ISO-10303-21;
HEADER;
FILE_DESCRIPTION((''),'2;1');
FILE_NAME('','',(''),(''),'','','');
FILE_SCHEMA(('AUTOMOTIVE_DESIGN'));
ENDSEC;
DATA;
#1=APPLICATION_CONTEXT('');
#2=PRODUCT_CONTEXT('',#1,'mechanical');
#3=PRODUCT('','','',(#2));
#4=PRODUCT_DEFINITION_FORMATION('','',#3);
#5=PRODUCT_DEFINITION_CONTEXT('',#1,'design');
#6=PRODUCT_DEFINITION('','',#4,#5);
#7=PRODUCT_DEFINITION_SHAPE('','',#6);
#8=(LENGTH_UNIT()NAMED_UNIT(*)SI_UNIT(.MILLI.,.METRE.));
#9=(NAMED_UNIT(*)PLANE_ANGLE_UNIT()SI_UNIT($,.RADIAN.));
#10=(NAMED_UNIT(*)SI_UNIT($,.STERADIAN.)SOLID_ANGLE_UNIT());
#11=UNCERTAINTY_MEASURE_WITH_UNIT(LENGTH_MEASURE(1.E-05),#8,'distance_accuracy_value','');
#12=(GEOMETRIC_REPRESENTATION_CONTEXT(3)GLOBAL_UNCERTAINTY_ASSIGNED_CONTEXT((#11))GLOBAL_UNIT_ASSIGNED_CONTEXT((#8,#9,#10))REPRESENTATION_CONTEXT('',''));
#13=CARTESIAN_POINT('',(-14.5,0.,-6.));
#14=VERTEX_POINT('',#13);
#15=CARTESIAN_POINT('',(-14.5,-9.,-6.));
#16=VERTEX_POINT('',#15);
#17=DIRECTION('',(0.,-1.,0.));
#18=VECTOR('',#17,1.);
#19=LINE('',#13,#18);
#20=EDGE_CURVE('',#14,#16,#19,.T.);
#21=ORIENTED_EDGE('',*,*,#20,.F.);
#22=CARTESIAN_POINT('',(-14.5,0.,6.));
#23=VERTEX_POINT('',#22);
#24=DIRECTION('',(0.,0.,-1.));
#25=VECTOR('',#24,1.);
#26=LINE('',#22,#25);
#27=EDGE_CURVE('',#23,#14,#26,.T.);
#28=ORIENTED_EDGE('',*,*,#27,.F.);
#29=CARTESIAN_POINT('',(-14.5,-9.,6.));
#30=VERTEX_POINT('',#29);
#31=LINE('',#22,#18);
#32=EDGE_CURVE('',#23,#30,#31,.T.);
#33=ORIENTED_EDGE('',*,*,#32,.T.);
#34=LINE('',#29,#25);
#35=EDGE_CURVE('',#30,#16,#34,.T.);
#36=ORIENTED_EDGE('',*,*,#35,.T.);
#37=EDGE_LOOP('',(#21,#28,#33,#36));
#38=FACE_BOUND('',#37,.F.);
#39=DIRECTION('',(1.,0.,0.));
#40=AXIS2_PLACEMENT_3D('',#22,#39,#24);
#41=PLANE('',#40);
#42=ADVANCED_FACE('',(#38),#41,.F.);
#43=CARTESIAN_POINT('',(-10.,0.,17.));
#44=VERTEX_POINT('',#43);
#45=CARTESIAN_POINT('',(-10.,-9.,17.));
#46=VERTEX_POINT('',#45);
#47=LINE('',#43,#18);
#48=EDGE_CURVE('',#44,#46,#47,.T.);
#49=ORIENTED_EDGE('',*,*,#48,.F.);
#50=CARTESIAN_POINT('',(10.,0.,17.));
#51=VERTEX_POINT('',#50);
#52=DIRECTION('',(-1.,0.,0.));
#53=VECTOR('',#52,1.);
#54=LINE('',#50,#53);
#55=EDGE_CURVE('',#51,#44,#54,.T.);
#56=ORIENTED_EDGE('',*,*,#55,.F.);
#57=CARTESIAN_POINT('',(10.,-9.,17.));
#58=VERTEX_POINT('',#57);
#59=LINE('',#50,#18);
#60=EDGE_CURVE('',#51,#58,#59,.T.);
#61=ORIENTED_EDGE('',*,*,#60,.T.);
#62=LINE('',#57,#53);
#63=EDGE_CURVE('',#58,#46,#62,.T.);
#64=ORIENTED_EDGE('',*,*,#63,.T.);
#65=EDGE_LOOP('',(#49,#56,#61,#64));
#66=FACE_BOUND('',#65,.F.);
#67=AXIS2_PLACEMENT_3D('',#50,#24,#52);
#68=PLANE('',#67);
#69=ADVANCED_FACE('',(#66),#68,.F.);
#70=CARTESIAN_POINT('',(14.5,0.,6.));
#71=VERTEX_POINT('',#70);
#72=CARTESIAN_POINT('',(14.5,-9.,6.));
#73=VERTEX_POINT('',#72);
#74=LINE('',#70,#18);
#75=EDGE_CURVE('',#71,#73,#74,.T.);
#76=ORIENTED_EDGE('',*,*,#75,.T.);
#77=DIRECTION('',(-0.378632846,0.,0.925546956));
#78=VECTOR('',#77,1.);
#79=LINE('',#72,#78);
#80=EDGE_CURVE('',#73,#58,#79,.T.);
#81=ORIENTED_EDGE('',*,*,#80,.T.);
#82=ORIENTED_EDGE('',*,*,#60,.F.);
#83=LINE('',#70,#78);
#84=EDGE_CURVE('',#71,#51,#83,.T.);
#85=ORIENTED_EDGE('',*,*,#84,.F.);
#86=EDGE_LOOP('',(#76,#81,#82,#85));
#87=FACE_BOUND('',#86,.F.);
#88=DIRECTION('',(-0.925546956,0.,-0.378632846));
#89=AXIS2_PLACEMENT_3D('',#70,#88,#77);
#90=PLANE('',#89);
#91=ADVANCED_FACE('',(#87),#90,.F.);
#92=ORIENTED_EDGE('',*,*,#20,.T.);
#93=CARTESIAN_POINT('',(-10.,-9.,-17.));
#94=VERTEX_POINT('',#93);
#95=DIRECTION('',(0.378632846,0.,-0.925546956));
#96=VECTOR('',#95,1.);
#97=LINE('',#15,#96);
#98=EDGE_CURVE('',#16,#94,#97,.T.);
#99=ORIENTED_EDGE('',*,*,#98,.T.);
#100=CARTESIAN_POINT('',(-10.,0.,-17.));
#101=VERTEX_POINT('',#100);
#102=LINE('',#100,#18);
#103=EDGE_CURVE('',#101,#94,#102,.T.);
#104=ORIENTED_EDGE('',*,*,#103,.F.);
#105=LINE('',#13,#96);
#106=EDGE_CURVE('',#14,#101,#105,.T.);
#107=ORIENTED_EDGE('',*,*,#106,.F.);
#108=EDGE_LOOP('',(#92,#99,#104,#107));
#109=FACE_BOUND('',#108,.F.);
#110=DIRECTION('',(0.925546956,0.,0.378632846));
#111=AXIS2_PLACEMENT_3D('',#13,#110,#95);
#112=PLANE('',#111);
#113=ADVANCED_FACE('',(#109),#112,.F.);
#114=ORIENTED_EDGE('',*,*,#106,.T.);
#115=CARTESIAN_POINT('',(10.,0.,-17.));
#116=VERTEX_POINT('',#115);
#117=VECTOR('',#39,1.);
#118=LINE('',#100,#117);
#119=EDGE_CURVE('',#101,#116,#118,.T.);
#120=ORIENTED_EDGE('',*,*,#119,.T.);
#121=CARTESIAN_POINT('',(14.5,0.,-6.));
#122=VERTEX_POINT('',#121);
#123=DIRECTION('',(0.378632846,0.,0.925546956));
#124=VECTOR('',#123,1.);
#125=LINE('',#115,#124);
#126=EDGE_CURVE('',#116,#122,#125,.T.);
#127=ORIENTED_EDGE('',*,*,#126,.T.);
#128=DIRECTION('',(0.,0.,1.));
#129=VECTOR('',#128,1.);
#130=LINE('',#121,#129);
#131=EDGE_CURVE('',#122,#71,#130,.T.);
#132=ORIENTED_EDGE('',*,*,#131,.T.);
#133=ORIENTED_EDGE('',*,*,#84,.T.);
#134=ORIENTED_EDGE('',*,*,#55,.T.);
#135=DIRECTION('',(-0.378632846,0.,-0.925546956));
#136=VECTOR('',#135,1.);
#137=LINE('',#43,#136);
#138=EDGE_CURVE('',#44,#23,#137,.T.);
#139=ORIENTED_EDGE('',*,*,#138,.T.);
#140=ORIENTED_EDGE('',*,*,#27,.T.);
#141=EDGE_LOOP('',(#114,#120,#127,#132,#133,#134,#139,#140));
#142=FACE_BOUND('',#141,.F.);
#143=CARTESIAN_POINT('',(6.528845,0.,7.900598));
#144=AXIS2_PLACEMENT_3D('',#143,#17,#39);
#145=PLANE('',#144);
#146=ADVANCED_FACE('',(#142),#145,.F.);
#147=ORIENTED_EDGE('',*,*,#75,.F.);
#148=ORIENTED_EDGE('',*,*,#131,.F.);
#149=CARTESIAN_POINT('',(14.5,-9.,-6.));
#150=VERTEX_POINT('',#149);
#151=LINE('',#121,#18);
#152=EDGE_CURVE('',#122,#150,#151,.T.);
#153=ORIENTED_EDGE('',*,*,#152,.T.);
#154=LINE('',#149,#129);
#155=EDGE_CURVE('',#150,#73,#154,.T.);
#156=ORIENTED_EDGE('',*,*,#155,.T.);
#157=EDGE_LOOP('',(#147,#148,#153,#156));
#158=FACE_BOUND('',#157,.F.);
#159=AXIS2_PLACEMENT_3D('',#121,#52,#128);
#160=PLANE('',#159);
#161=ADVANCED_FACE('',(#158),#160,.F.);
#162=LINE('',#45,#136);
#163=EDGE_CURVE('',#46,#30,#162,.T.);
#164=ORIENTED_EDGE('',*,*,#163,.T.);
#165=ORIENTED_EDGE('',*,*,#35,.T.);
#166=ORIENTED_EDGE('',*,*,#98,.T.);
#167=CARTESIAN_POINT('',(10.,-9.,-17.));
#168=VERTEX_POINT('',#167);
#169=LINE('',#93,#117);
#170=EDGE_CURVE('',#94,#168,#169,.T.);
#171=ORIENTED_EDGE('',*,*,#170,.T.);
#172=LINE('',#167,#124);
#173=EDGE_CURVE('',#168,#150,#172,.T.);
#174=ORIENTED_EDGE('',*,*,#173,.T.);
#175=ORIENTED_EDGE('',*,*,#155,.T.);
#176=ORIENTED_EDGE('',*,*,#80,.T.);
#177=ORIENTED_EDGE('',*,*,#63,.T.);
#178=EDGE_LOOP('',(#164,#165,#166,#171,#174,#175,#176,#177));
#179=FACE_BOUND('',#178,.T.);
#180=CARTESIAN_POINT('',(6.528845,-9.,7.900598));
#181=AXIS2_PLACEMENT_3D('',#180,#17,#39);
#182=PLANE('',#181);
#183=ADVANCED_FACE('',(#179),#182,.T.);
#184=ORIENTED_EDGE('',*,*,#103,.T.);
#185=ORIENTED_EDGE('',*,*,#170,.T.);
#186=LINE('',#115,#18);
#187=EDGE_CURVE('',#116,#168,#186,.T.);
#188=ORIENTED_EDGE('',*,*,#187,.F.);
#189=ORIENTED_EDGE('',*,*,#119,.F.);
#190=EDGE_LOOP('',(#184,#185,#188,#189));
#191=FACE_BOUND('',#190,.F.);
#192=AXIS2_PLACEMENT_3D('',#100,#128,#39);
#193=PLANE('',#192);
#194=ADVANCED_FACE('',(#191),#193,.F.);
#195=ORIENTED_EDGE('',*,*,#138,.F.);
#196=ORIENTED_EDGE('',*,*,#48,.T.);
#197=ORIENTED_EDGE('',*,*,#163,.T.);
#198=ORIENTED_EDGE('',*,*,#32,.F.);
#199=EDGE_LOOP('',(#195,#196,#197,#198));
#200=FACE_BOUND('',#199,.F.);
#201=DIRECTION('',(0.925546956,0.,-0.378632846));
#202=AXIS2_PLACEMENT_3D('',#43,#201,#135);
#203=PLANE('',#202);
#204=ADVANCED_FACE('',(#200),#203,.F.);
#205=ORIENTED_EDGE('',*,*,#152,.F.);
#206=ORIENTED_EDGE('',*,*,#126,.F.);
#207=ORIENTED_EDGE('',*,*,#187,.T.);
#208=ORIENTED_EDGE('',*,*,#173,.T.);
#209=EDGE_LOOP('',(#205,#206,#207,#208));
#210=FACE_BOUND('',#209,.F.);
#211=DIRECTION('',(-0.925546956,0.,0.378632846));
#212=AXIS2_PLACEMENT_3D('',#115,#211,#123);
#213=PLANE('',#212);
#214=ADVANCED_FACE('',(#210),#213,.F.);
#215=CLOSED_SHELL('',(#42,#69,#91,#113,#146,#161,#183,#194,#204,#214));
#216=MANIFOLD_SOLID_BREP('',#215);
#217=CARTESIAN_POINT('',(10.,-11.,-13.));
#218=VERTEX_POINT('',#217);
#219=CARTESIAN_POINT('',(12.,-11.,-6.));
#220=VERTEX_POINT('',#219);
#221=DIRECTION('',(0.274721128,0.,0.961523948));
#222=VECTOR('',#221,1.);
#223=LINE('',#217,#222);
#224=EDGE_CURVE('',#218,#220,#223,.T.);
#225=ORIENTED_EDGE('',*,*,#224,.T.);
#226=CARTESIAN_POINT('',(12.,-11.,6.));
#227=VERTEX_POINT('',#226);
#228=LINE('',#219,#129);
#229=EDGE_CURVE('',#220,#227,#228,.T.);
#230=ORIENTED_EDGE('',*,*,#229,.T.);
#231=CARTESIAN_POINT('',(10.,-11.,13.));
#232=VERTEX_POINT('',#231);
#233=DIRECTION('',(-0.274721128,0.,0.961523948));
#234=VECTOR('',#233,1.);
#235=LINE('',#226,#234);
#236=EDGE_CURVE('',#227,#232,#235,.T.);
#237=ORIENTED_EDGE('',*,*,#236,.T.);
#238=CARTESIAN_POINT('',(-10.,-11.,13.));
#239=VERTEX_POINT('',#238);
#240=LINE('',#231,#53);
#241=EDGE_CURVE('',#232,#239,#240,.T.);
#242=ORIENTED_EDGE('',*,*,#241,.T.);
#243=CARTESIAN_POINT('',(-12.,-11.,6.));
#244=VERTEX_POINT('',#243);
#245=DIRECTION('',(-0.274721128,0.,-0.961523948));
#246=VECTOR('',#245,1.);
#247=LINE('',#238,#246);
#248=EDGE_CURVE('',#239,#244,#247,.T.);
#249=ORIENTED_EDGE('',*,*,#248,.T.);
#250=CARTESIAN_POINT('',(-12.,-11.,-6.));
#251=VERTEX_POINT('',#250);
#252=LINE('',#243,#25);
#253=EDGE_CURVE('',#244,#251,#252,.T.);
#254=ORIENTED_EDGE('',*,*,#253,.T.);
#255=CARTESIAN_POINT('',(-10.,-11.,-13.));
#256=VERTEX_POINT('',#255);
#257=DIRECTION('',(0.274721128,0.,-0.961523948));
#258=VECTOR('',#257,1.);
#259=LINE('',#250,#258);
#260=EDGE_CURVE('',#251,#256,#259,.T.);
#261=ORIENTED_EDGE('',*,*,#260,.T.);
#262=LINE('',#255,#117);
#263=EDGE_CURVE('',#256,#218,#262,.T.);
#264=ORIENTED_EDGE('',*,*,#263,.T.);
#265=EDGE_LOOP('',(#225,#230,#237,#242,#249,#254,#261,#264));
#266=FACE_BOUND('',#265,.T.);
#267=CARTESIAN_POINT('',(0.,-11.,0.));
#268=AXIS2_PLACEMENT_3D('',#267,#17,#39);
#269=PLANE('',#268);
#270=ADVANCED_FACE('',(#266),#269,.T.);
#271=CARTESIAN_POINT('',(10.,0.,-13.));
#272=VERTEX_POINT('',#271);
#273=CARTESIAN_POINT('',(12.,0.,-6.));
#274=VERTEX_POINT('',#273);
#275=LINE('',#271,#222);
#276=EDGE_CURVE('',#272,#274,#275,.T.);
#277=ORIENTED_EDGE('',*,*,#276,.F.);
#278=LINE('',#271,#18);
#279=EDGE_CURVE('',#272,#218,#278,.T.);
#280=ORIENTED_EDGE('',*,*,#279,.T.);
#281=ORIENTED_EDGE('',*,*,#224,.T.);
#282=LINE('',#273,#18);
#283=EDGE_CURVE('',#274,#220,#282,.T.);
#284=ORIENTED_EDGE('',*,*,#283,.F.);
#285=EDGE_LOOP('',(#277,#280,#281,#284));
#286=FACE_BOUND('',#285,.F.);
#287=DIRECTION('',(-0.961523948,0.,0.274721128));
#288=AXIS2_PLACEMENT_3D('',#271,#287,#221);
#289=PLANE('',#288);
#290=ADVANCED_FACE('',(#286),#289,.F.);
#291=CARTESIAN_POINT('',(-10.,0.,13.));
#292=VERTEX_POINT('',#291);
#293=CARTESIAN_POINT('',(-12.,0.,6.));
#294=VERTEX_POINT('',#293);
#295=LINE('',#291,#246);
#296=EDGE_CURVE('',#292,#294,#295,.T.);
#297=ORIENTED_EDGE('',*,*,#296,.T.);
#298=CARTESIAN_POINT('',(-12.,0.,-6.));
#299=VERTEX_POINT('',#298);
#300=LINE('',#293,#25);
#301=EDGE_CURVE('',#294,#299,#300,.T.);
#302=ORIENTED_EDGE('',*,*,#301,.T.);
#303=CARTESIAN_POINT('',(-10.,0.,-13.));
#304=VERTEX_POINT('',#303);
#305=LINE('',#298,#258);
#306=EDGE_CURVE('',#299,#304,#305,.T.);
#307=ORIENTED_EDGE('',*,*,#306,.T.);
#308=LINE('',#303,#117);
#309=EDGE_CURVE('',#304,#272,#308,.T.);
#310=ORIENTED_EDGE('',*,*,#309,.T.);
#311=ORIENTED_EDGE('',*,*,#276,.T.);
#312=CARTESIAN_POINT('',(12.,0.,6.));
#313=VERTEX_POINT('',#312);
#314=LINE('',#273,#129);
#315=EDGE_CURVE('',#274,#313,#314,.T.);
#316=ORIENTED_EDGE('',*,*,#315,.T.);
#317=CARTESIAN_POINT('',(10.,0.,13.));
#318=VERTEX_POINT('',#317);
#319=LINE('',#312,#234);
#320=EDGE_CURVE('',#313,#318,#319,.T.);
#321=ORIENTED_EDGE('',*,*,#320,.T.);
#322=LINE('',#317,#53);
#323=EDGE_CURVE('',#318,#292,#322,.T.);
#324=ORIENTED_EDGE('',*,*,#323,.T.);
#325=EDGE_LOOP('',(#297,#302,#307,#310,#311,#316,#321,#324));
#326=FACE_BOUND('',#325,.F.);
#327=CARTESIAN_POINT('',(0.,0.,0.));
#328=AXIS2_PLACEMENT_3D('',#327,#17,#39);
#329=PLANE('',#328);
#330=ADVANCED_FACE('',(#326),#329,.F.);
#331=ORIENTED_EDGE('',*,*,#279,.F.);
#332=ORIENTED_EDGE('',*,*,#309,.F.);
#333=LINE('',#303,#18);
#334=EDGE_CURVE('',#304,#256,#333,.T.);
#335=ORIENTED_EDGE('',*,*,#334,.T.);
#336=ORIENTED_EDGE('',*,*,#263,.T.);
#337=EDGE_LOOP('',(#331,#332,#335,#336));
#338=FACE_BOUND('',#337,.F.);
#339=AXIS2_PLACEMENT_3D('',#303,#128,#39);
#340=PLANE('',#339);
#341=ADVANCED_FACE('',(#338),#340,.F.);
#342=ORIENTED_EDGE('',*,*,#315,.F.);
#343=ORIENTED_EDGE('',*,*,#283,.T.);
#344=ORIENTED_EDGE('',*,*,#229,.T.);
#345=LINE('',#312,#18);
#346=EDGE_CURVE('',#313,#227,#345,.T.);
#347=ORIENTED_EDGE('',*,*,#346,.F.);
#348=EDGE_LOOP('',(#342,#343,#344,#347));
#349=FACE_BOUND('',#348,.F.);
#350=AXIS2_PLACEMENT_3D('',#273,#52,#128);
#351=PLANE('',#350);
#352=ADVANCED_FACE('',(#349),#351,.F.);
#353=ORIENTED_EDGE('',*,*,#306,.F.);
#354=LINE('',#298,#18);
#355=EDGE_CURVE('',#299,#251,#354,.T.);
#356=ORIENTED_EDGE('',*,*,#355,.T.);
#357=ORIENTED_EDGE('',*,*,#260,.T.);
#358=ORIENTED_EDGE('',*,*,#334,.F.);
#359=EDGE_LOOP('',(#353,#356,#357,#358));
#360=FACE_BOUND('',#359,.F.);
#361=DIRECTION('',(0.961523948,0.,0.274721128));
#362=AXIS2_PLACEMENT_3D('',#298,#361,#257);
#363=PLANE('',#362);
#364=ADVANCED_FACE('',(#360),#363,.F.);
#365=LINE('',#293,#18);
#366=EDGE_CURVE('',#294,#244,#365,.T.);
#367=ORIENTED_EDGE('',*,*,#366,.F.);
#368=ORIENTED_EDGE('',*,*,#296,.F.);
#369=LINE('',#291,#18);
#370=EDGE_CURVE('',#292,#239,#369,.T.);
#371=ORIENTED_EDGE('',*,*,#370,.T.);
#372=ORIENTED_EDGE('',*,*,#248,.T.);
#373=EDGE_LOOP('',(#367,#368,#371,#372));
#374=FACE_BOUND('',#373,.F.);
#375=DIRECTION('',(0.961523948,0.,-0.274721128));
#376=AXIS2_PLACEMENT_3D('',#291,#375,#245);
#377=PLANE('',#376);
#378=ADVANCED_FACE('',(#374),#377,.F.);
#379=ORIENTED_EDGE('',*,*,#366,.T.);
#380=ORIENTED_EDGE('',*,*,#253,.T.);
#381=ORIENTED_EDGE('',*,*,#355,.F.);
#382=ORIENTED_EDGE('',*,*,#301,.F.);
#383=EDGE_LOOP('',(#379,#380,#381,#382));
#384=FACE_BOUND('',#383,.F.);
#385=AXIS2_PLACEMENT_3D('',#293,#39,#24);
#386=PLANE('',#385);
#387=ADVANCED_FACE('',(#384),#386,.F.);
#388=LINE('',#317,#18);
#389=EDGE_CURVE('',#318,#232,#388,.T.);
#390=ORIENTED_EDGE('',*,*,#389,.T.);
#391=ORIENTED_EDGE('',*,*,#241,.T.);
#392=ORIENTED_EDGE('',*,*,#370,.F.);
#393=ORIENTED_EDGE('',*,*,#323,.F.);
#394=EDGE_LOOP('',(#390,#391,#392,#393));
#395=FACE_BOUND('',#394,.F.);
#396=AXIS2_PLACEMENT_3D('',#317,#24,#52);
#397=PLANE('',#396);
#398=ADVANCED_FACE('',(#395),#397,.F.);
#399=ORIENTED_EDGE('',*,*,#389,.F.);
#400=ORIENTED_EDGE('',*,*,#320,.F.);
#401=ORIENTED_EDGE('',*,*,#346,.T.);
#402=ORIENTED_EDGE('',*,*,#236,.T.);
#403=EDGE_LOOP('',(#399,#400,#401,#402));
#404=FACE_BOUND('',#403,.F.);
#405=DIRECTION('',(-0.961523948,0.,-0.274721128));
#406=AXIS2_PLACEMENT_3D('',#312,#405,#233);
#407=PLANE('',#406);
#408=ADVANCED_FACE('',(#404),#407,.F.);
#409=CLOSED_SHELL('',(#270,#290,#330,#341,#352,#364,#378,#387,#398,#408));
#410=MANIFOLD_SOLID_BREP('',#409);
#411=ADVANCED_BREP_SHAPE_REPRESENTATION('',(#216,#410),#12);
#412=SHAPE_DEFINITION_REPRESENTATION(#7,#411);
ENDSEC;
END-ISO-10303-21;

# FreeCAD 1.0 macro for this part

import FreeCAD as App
import Part
import Sketcher
from FreeCAD import Vector
Q = App.Units.Quantity

doc = App.newDocument("Part")
body = doc.addObject("PartDesign::Body", "Body")

sketch1 = body.newObject("Sketcher::SketchObject", "Sketch")
sketch1.AttachmentSupport = (doc.getObject("XZ_Plane"), [""])
sketch1.MapMode = "FlatFace"
sketch1.addGeometry([
    Part.LineSegment(Vector(10, 17, 0), Vector(-10, 17, 0)),
    Part.LineSegment(Vector(-10, 17, 0), Vector(-14, 6, 0)),
    Part.LineSegment(Vector(-14, 6, 0), Vector(-14, -6, 0)),
    Part.LineSegment(Vector(-14, -6, 0), Vector(-10, -17, 0)),
    Part.LineSegment(Vector(-10, -17, 0), Vector(10, -17, 0)),
    Part.LineSegment(Vector(10, -17, 0), Vector(14, -6, 0)),
    Part.LineSegment(Vector(14, -6, 0), Vector(14, 6, 0)),
    Part.LineSegment(Vector(14, 6, 0), Vector(10, 17, 0)),
], False)
sketch1.addConstraint([
    Sketcher.Constraint("Coincident", 0, 2, 1, 1),
    Sketcher.Constraint("Coincident", 1, 2, 2, 1),
    Sketcher.Constraint("Coincident", 2, 2, 3, 1),
    Sketcher.Constraint("Coincident", 3, 2, 4, 1),
    Sketcher.Constraint("Coincident", 4, 2, 5, 1),
    Sketcher.Constraint("Coincident", 5, 2, 6, 1),
    Sketcher.Constraint("Coincident", 6, 2, 7, 1),
    Sketcher.Constraint("Coincident", 7, 2, 0, 1),
    Sketcher.Constraint("Horizontal", 0),
    Sketcher.Constraint("Vertical", 2),
    Sketcher.Constraint("Horizontal", 4),
    Sketcher.Constraint("Vertical", 6),
    Sketcher.Constraint("Symmetric", 0, 2, 4, 2, -1, 1),
    Sketcher.Constraint("Symmetric", 1, 2, 5, 2, -1, 1),
    Sketcher.Constraint("Parallel", 3, 7),
    Sketcher.Constraint("Horizontal", 2, 2, 5, 2),
    Sketcher.Constraint("Horizontal", 1, 2, 6, 2),
    Sketcher.Constraint("Vertical", 0, 2, 3, 2),
    Sketcher.Constraint("DistanceX", 0, 2, 0, 1, Q("20 mm")),
    Sketcher.Constraint("DistanceY", 2, 2, 2, 1, Q("12 mm")),
    Sketcher.Constraint("DistanceY", -1, 1, 0, 2, Q("17 mm")),
    Sketcher.Constraint("DistanceX", 2, 2, 5, 2, Q("29 mm")),
])
pad1 = body.newObject("PartDesign::Pad", "Pad")
pad1.Profile = sketch1
pad1.Length = 9
body2 = doc.addObject("PartDesign::Body", "Body001")

sketch2 = body2.newObject("Sketcher::SketchObject", "Sketch001")
sketch2.AttachmentSupport = (doc.getObject("XZ_Plane001"), [""])
sketch2.MapMode = "FlatFace"
sketch2.addGeometry([
    Part.LineSegment(Vector(-10, 13, 0), Vector(-12, 6, 0)),
    Part.LineSegment(Vector(-12, 6, 0), Vector(-12, -6, 0)),
    Part.LineSegment(Vector(-12, -6, 0), Vector(-10, -13, 0)),
    Part.LineSegment(Vector(-10, -13, 0), Vector(10, -13, 0)),
    Part.LineSegment(Vector(10, -13, 0), Vector(12, -6, 0)),
    Part.LineSegment(Vector(12, -6, 0), Vector(12, 6, 0)),
    Part.LineSegment(Vector(12, 6, 0), Vector(10, 13, 0)),
    Part.LineSegment(Vector(10, 13, 0), Vector(-10, 13, 0)),
], False)
sketch2.addConstraint([
    Sketcher.Constraint("Coincident", 0, 2, 1, 1),
    Sketcher.Constraint("Coincident", 1, 2, 2, 1),
    Sketcher.Constraint("Coincident", 2, 2, 3, 1),
    Sketcher.Constraint("Coincident", 3, 2, 4, 1),
    Sketcher.Constraint("Coincident", 4, 2, 5, 1),
    Sketcher.Constraint("Coincident", 5, 2, 6, 1),
    Sketcher.Constraint("Coincident", 6, 2, 7, 1),
    Sketcher.Constraint("Coincident", 7, 2, 0, 1),
    Sketcher.Constraint("Vertical", 1),
    Sketcher.Constraint("Horizontal", 3),
    Sketcher.Constraint("Vertical", 5),
    Sketcher.Constraint("Horizontal", 7),
    Sketcher.Constraint("Symmetric", 0, 2, 4, 2, -1, 1),
    Sketcher.Constraint("Symmetric", 2, 2, 6, 2, -1, 1),
    Sketcher.Constraint("Parallel", 0, 4),
    Sketcher.Constraint("Parallel", 2, 6),
    Sketcher.Constraint("Horizontal", 1, 2, 4, 2),
    Sketcher.Constraint("Vertical", 3, 2, 6, 2),
    Sketcher.Constraint("DistanceX", 3, 1, 3, 2, Q("20 mm")),
    Sketcher.Constraint("DistanceY", 1, 2, 1, 1, Q("12 mm")),
    Sketcher.Constraint("DistanceX", 0, 2, -1, 1, Q("12 mm")),
    Sketcher.Constraint("DistanceY", 2, 2, -1, 1, Q("13 mm")),
])
pad2 = body2.newObject("PartDesign::Pad", "Pad001")
pad2.Profile = sketch2
pad2.Length = 11

doc.recompute()
